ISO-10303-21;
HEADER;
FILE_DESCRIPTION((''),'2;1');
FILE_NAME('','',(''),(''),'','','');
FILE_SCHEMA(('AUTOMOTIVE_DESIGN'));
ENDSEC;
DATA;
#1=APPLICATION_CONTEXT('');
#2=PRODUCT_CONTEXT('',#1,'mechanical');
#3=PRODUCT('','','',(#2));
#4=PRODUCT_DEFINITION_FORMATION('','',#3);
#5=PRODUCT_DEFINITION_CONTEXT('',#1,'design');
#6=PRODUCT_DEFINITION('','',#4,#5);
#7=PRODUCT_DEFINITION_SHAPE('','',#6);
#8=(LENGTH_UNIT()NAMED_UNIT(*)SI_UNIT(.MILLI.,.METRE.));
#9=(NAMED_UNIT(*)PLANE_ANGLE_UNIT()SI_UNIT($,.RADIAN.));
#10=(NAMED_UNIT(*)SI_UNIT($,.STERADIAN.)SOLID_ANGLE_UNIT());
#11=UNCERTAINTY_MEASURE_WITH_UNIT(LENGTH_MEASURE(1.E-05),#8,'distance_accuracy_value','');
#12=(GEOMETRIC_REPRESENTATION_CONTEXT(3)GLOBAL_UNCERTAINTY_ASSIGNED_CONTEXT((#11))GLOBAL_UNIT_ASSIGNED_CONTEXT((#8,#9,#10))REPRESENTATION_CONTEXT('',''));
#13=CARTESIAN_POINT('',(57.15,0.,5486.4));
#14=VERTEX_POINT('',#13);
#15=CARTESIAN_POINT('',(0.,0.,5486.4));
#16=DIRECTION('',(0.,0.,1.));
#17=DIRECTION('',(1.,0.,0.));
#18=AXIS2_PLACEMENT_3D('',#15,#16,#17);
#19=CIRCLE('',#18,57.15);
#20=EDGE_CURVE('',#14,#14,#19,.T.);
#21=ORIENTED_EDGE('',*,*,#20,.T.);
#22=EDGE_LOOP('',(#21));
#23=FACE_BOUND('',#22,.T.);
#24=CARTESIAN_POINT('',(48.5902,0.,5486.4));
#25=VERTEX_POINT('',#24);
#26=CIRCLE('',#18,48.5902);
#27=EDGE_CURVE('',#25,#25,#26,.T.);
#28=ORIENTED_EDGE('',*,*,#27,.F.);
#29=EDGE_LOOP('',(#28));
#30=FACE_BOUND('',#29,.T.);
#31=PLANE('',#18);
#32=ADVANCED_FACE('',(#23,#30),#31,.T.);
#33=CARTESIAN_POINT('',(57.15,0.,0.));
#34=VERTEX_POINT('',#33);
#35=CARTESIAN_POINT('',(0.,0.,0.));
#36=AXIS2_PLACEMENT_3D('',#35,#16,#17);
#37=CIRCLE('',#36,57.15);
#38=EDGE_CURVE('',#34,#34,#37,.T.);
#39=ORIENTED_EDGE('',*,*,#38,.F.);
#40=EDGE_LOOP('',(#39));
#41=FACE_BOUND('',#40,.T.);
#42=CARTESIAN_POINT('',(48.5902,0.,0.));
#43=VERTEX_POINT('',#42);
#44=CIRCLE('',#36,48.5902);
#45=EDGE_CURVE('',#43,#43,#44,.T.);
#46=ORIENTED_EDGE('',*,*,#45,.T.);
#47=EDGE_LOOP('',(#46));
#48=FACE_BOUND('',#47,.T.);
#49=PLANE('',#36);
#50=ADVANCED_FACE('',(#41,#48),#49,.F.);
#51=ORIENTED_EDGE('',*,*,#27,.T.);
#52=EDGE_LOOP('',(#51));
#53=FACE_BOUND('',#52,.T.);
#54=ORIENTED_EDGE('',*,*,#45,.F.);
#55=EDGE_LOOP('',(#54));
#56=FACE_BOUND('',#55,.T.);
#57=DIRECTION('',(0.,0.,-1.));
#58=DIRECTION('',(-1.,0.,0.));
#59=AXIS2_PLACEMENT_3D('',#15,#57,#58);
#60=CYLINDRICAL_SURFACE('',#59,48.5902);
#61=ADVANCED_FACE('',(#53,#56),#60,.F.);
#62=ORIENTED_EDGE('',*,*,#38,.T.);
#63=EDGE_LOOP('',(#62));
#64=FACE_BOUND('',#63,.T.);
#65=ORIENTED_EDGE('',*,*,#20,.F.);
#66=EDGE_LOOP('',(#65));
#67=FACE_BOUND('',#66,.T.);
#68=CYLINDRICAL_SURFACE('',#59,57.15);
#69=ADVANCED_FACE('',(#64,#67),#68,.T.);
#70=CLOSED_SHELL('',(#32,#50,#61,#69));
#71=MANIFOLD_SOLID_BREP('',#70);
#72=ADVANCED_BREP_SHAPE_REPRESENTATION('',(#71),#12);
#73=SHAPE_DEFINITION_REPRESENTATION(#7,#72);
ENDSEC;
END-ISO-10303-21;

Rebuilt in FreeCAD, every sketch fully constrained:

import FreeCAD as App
import Part
import Sketcher
Q = App.Units.Quantity

doc = App.newDocument("Part")
body = doc.addObject("PartDesign::Body", "Body")

sketch1 = body.newObject("Sketcher::SketchObject", "Sketch")
sketch1.AttachmentSupport = (doc.getObject("XY_Plane"), [""])
sketch1.MapMode = "FlatFace"
sketch1.addGeometry([
    Part.Circle(App.Vector(0, 0, 0), App.Vector(0, 0, 1), 57.15),
    Part.Circle(App.Vector(0, 0, 0), App.Vector(0, 0, 1), 48.5902),
], False)
sketch1.addConstraint([
    Sketcher.Constraint("Coincident", 0, 3, -1, 1),
    Sketcher.Constraint("Coincident", 1, 3, -1, 1),
    Sketcher.Constraint("Diameter", 0, Q("4.5 in")),
    Sketcher.Constraint("Diameter", 1, Q("3.826 in")),
])
pad1 = body.newObject("PartDesign::Pad", "Pad")
pad1.Profile = sketch1
pad1.Length = Q("216 in")

doc.recompute()
